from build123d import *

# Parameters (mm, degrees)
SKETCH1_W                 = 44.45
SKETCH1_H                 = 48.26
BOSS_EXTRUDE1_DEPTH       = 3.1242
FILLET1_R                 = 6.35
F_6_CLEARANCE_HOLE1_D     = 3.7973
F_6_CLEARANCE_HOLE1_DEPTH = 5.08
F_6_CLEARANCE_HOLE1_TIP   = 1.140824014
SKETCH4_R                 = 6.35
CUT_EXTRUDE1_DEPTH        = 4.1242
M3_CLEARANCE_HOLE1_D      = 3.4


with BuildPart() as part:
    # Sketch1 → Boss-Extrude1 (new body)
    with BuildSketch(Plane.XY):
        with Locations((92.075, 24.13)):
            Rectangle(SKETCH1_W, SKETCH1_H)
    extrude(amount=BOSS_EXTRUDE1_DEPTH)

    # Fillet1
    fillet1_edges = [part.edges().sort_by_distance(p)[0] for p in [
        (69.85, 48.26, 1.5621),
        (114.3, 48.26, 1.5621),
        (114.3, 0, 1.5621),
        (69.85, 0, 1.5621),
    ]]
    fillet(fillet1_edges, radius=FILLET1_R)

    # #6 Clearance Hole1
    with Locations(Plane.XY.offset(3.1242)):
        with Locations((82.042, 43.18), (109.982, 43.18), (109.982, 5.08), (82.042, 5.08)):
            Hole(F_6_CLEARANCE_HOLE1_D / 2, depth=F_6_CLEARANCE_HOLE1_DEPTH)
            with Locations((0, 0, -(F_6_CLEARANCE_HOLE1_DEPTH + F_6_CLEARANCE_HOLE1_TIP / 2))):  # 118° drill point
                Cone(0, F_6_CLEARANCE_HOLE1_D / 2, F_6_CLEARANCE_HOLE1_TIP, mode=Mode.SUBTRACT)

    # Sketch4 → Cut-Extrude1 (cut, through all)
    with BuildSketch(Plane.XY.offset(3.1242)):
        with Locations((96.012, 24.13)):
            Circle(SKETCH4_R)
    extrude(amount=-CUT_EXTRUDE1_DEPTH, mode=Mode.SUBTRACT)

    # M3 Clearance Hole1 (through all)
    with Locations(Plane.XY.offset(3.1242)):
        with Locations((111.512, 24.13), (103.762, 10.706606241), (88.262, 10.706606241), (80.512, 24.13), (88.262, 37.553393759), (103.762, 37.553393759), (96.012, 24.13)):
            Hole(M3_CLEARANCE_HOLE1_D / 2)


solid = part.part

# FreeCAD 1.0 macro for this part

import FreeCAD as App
import Part
import Sketcher
Q = App.Units.Quantity


def edges_at(feature, points):
    """Names of the edges that pass closest to the given points."""
    edges = feature.Shape.Edges
    near = lambda p: min(range(len(edges)), key=lambda i: edges[i].distToShape(Part.Vertex(*p))[0])
    return sorted({f"Edge{near(p) + 1}" for p in points})

doc = App.newDocument("Part")
body = doc.addObject("PartDesign::Body", "Body")

# Sketch on XY plane
sketch1 = doc.addObject("Sketcher::SketchObject", "Sketch")
body.addObject(sketch1)
sketch1.AttachmentSupport = (doc.XY_Plane, [""])
sketch1.MapMode = "FlatFace"
sketch1.addGeometry([
    Part.LineSegment(App.Vector(69.85, 48.26, 0), App.Vector(69.85, 0, 0)),
    Part.LineSegment(App.Vector(69.85, 0, 0), App.Vector(114.3, 0, 0)),
    Part.LineSegment(App.Vector(114.3, 0, 0), App.Vector(114.3, 48.26, 0)),
    Part.LineSegment(App.Vector(114.3, 48.26, 0), App.Vector(69.85, 48.26, 0)),
], False)
sketch1.addConstraint([
    Sketcher.Constraint("Coincident", 0, 2, 1, 1),
    Sketcher.Constraint("Coincident", 1, 2, 2, 1),
    Sketcher.Constraint("Coincident", 2, 2, 3, 1),
    Sketcher.Constraint("Coincident", 3, 2, 0, 1),
    Sketcher.Constraint("Vertical", 0),
    Sketcher.Constraint("Horizontal", 1),
    Sketcher.Constraint("Vertical", 2),
    Sketcher.Constraint("Horizontal", 3),
    Sketcher.Constraint("PointOnObject", 0, 2, -1),
    Sketcher.Constraint("DistanceY", 0, 2, 0, 1, Q("1.9 in")),
    Sketcher.Constraint("DistanceX", 1, 1, 1, 2, Q("1.75 in")),
    Sketcher.Constraint("DistanceX", -1, 1, 1, 2, Q("4.5 in")),
])
pad1 = doc.addObject("PartDesign::Pad", "Pad")
body.addObject(pad1)
pad1.Profile = sketch1
pad1.Length = Q("0.123 in")
doc.recompute()

fillet = doc.addObject("PartDesign::Fillet", "Fillet")
body.addObject(fillet)
fillet.Base = (pad1, edges_at(pad1, [
    (69.85, 48.26, 1.562),
    (114.3, 48.26, 1.562),
    (114.3, 0, 1.562),
    (69.85, 0, 1.562),
]))
fillet.Radius = Q("0.25 in")

# Sketch on XY plane
sketch2 = doc.addObject("Sketcher::SketchObject", "Sketch001")
body.addObject(sketch2)
sketch2.AttachmentSupport = (doc.XY_Plane, [""])
sketch2.MapMode = "FlatFace"
sketch2.AttachmentOffset = App.Placement(App.Vector(0, 0, 0.123 * 25.4), App.Rotation())
sketch2.addGeometry([
    Part.Circle(App.Vector(82.042, 43.18, 0), App.Vector(0, 0, 1), 1.89865),
    Part.Circle(App.Vector(109.982, 43.18, 0), App.Vector(0, 0, 1), 1.89865),
    Part.Circle(App.Vector(109.982, 5.08, 0), App.Vector(0, 0, 1), 1.89865),
    Part.Circle(App.Vector(82.042, 5.08, 0), App.Vector(0, 0, 1), 1.89865),
], False)
sketch2.addConstraint([
    Sketcher.Constraint("Equal", 0, 1),
    Sketcher.Constraint("Equal", 1, 2),
    Sketcher.Constraint("Equal", 2, 3),
    Sketcher.Constraint("Horizontal", 0, 3, 1, 3),
    Sketcher.Constraint("Horizontal", 2, 3, 3, 3),
    Sketcher.Constraint("Vertical", 1, 3, 2, 3),
    Sketcher.Constraint("Vertical", 0, 3, 3, 3),
    Sketcher.Constraint("Diameter", 0, Q("0.1495 in")),
    Sketcher.Constraint("DistanceY", -1, 1, 0, 3, Q("1.7 in")),
    Sketcher.Constraint("DistanceY", -1, 1, 2, 3, Q("0.2 in")),
    Sketcher.Constraint("DistanceX", 0, 3, 1, 3, Q("1.1 in")),
    Sketcher.Constraint("DistanceX", -1, 1, 0, 3, Q("3.23 in")),
])
doc.recompute()
hole = doc.addObject("PartDesign::Hole", "Hole")
body.addObject(hole)
hole.Profile = sketch2
hole.ThreadType = "None"
hole.Diameter = Q("0.1495 in")
hole.DepthType = "Dimension"
hole.Depth = Q("0.2 in")
hole.DrillPoint = "Angled"
hole.DrillPointAngle = 118

# Sketch on XY plane
sketch3 = doc.addObject("Sketcher::SketchObject", "Sketch002")
body.addObject(sketch3)
sketch3.AttachmentSupport = (doc.XY_Plane, [""])
sketch3.MapMode = "FlatFace"
sketch3.AttachmentOffset = App.Placement(App.Vector(0, 0, 0.123 * 25.4), App.Rotation())
sketch3.addGeometry(Part.Circle(App.Vector(96.012, 24.13, 0), App.Vector(0, 0, 1), 6.35), False)
sketch3.addConstraint([
    Sketcher.Constraint("Diameter", 0, Q("0.5 in")),
    Sketcher.Constraint("DistanceX", -1, 1, 0, 3, Q("3.78 in")),
    Sketcher.Constraint("DistanceY", -1, 1, 0, 3, Q("0.95 in")),
])
pocket1 = doc.addObject("PartDesign::Pocket", "Pocket")
body.addObject(pocket1)
pocket1.Profile = sketch3
pocket1.Type = "ThroughAll"

# Sketch on XY plane
sketch4 = doc.addObject("Sketcher::SketchObject", "Sketch003")
body.addObject(sketch4)
sketch4.AttachmentSupport = (doc.XY_Plane, [""])
sketch4.MapMode = "FlatFace"
sketch4.AttachmentOffset = App.Placement(App.Vector(0, 0, 0.123 * 25.4), App.Rotation())
sketch4.addGeometry([
    Part.Circle(App.Vector(111.512, 24.13, 0), App.Vector(0, 0, 1), 1.7),  # 0
    Part.Circle(App.Vector(103.762, 10.706606, 0), App.Vector(0, 0, 1), 1.7),  # 1
    Part.Circle(App.Vector(88.262, 10.706606, 0), App.Vector(0, 0, 1), 1.7),  # 2
    Part.Circle(App.Vector(80.512, 24.13, 0), App.Vector(0, 0, 1), 1.7),  # 3
    Part.Circle(App.Vector(88.262, 37.553394, 0), App.Vector(0, 0, 1), 1.7),  # 4
    Part.Circle(App.Vector(103.762, 37.553394, 0), App.Vector(0, 0, 1), 1.7),  # 5
    Part.Circle(App.Vector(96.012, 24.13, 0), App.Vector(0, 0, 1), 1.7),  # 6
], False)
sketch4.addConstraint([
    Sketcher.Constraint("Equal", 0, 1),
    Sketcher.Constraint("Equal", 1, 2),
    Sketcher.Constraint("Equal", 2, 3),
    Sketcher.Constraint("Equal", 3, 4),
    Sketcher.Constraint("Equal", 4, 5),
    Sketcher.Constraint("Equal", 5, 6),
    Sketcher.Constraint("Horizontal", 1, 3, 2, 3),
    Sketcher.Constraint("Horizontal", 0, 3, 3, 3),
    Sketcher.Constraint("Horizontal", 4, 3, 5, 3),
    Sketcher.Constraint("Horizontal", 3, 3, 6, 3),
    Sketcher.Constraint("Vertical", 2, 3, 4, 3),
    Sketcher.Constraint("Vertical", 1, 3, 5, 3),
    Sketcher.Constraint("Diameter", 0, Q("3.4 mm")),
    Sketcher.Constraint("DistanceY", -1, 1, 0, 3, Q("0.95 in")),
    Sketcher.Constraint("DistanceX", -1, 1, 6, 3, Q("3.78 in")),
    Sketcher.Constraint("DistanceX", -1, 1, 0, 3, Q("111.512 mm")),
    Sketcher.Constraint("DistanceX", -1, 1, 1, 3, Q("103.762 mm")),
    Sketcher.Constraint("DistanceX", -1, 1, 2, 3, Q("88.262 mm")),
    Sketcher.Constraint("DistanceX", -1, 1, 3, 3, Q("80.512 mm")),
    Sketcher.Constraint("DistanceY", -1, 1, 1, 3, Q("10.706606 mm")),
    Sketcher.Constraint("DistanceY", -1, 1, 4, 3, Q("37.553394 mm")),
])
doc.recompute()
hole2 = doc.addObject("PartDesign::Hole", "Hole001")
body.addObject(hole2)
hole2.Profile = sketch4
hole2.ThreadType = "None"
hole2.Diameter = 3.4
hole2.DepthType = "ThroughAll"

doc.recompute()
